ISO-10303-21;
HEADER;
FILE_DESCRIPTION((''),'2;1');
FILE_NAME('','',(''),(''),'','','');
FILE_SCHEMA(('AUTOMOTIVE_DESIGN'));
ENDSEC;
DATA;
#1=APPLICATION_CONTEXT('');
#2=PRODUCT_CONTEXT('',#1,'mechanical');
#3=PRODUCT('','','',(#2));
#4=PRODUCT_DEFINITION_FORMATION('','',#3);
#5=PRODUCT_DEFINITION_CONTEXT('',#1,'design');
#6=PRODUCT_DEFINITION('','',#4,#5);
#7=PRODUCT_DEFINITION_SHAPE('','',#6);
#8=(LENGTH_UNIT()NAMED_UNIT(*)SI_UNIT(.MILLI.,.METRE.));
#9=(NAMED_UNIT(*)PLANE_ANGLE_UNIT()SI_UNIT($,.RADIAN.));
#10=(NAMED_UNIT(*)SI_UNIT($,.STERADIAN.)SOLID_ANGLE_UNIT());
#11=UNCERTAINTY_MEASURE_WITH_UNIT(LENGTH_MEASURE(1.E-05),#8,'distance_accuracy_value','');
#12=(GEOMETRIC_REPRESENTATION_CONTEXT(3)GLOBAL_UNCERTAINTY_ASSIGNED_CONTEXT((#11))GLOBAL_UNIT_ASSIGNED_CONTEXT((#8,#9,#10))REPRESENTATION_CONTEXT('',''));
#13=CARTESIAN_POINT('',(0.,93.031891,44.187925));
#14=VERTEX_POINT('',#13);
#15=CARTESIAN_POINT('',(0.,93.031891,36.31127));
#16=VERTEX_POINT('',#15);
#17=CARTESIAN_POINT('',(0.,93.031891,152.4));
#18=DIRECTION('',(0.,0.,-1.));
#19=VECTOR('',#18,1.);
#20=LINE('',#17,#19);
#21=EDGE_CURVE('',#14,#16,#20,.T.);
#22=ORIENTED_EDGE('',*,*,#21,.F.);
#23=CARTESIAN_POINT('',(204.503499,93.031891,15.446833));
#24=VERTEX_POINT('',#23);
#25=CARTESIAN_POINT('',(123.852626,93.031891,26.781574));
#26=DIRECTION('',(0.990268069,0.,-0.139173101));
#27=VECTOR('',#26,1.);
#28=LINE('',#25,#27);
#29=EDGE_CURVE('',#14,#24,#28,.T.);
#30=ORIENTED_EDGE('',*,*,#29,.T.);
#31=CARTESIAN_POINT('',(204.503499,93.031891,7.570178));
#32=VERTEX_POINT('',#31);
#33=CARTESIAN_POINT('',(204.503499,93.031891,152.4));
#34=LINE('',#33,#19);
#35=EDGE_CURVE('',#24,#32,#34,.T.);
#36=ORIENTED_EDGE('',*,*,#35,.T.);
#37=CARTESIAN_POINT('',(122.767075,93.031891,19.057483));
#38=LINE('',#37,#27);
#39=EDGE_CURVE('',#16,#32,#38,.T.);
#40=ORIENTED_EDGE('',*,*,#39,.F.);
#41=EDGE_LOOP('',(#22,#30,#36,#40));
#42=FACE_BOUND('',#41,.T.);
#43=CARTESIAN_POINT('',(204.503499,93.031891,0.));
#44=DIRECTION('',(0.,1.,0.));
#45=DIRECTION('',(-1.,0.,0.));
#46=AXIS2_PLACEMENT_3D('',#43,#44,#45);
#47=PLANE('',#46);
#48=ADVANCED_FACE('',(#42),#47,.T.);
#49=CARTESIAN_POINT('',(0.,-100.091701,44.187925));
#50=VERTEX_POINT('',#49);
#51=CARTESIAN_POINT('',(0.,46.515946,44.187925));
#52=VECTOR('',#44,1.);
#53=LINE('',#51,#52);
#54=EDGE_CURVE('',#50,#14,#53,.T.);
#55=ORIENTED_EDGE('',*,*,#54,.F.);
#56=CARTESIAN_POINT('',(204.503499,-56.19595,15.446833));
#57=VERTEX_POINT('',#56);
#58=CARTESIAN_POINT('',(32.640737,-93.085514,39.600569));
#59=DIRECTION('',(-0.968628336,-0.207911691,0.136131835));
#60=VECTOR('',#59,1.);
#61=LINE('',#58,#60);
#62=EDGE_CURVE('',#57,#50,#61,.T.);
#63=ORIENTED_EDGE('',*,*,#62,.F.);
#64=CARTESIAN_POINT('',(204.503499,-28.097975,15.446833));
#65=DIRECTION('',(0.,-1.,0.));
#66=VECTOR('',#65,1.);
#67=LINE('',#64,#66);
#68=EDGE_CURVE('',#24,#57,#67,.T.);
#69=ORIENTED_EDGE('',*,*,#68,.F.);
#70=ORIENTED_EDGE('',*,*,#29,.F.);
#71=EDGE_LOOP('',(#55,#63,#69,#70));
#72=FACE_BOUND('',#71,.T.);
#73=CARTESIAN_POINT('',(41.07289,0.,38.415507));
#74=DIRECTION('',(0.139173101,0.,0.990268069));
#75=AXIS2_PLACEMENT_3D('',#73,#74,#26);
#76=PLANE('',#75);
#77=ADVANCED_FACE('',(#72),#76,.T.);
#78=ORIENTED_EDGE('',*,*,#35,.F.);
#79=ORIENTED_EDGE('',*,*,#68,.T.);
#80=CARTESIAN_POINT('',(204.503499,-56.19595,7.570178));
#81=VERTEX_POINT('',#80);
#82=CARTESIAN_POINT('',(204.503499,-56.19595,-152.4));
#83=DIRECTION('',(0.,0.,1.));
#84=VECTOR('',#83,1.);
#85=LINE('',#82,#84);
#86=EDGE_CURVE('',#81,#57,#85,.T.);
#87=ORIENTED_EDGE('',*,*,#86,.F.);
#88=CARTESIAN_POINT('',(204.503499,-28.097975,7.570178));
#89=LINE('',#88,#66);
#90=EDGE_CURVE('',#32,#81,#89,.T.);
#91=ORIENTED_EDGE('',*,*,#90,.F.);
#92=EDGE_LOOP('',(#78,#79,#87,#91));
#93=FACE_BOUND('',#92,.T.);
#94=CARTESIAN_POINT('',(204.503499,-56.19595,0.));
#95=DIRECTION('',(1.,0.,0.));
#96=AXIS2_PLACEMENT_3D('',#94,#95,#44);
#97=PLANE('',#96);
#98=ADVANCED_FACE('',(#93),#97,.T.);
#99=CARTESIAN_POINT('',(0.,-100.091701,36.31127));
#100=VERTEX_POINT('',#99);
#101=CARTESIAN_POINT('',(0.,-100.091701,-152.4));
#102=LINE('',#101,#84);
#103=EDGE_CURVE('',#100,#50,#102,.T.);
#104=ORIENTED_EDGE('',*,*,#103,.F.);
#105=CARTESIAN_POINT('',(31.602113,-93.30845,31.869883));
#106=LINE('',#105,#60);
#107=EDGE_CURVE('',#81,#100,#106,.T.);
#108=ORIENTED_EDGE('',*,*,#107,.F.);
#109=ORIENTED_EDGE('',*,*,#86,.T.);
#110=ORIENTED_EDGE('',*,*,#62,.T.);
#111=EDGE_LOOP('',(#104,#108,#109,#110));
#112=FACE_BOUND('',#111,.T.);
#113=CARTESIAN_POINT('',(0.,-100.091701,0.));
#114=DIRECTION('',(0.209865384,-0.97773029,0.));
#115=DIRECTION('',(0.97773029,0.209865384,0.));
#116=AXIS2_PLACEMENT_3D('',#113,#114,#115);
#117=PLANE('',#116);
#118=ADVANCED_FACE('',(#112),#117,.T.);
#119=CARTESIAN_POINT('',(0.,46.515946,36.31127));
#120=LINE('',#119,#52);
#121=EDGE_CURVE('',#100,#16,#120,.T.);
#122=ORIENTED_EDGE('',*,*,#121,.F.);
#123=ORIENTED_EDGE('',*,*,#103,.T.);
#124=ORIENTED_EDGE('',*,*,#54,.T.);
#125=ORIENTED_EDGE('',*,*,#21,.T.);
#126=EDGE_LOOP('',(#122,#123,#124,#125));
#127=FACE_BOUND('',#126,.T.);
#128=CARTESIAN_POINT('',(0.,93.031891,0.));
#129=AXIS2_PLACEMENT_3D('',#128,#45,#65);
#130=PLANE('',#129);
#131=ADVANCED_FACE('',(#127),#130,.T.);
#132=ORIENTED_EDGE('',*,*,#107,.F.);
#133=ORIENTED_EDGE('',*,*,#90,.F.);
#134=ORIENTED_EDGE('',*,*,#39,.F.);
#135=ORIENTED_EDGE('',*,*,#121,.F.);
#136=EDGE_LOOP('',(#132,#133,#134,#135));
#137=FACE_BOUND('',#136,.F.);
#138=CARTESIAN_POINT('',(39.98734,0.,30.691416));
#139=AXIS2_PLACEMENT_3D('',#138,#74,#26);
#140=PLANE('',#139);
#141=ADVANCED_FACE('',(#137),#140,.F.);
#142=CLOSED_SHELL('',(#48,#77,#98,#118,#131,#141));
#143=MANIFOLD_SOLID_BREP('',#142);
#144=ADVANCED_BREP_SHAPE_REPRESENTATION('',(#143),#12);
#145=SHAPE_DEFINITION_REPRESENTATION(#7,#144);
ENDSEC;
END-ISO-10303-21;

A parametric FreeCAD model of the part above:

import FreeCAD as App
import Part
import Sketcher
from FreeCAD import Vector
Q = App.Units.Quantity


def add_polygon(sketch, points):
    """Adds a closed chain of lines whose ends are joined by coincident constraints."""
    first, n = sketch.GeometryCount, len(points)
    for a, b in zip(points, points[1:] + points[:1]):
        sketch.addGeometry(Part.LineSegment(App.Vector(*a, 0), App.Vector(*b, 0)), False)
    for i in range(n):
        sketch.addConstraint(Sketcher.Constraint("Coincident", first + i, 2, first + (i + 1) % n, 1))

doc = App.newDocument("Part")
body = doc.addObject("PartDesign::Body", "Body")

# Sketch on XY plane
sketch1 = body.newObject("Sketcher::SketchObject", "Sketch")
sketch1.AttachmentSupport = (doc.getObject("XY_Plane"), [""])
sketch1.MapMode = "FlatFace"
add_polygon(sketch1, [(-229, 152), (-229, -152), (229, -152), (229, 152)])  # lines 0-3
sketch1.addConstraint(Sketcher.Constraint("Vertical", 0))
sketch1.addConstraint(Sketcher.Constraint("Horizontal", 1))
sketch1.addConstraint(Sketcher.Constraint("Vertical", 2))
sketch1.addConstraint(Sketcher.Constraint("Horizontal", 3))
sketch1.addConstraint(Sketcher.Constraint("Symmetric", 0, 2, 2, 2, -1, 1))
sketch1.addConstraint(Sketcher.Constraint("DistanceX", 1, 1, 1, 2, Q("18 in")))
sketch1.addConstraint(Sketcher.Constraint("DistanceY", 0, 2, 0, 1, Q("12 in")))
pad1 = body.newObject("PartDesign::Pad", "Pad")
pad1.Profile = sketch1
pad1.Length = 7.8
pad1.Reversed = True
body2 = doc.addObject("PartDesign::Body", "Body001")
doc.recompute()

body.Placement = App.Placement(Vector(41.07289, 0, 38.415507), App.Rotation(Vector(0, 1, 0), 8))
boolean = body2.newObject("PartDesign::Boolean", "Boolean")
boolean.Type = "Fuse"
boolean.addObjects([body])
body3 = doc.addObject("PartDesign::Body", "Body002")

# Sketch on XY plane
sketch2 = body3.newObject("Sketcher::SketchObject", "Sketch001")
sketch2.AttachmentSupport = (doc.getObject("XY_Plane002"), [""])
sketch2.MapMode = "FlatFace"
add_polygon(sketch2, [(0, 93), (0, -100), (205, -56), (205, 93)])  # lines 0-3
sketch2.addConstraint(Sketcher.Constraint("Vertical", 0))
sketch2.addConstraint(Sketcher.Constraint("Vertical", 2))
sketch2.addConstraint(Sketcher.Constraint("Horizontal", 3))
sketch2.addConstraint(Sketcher.Constraint("PointOnObject", 0, 2, -2))
sketch2.addConstraint(Sketcher.Constraint("DistanceX", 3, 2, 3, 1, Q("204.503499 mm")))
sketch2.addConstraint(Sketcher.Constraint("DistanceY", 0, 2, 0, 1, Q("193.123592 mm")))
sketch2.addConstraint(Sketcher.Constraint("DistanceY", 2, 1, 2, 2, Q("149.227841 mm")))
sketch2.addConstraint(Sketcher.Constraint("DistanceY", 0, 2, -1, 1, Q("100.091701 mm")))
pad2 = body3.newObject("PartDesign::Pad", "Pad001")
pad2.Profile = sketch2
pad2.Length = Q("12 in")
pad2.Midplane = True
doc.recompute()

boolean2 = body3.newObject("PartDesign::Boolean", "Boolean001")
boolean2.Type = "Common"
boolean2.addObjects([body2])

doc.recompute()
